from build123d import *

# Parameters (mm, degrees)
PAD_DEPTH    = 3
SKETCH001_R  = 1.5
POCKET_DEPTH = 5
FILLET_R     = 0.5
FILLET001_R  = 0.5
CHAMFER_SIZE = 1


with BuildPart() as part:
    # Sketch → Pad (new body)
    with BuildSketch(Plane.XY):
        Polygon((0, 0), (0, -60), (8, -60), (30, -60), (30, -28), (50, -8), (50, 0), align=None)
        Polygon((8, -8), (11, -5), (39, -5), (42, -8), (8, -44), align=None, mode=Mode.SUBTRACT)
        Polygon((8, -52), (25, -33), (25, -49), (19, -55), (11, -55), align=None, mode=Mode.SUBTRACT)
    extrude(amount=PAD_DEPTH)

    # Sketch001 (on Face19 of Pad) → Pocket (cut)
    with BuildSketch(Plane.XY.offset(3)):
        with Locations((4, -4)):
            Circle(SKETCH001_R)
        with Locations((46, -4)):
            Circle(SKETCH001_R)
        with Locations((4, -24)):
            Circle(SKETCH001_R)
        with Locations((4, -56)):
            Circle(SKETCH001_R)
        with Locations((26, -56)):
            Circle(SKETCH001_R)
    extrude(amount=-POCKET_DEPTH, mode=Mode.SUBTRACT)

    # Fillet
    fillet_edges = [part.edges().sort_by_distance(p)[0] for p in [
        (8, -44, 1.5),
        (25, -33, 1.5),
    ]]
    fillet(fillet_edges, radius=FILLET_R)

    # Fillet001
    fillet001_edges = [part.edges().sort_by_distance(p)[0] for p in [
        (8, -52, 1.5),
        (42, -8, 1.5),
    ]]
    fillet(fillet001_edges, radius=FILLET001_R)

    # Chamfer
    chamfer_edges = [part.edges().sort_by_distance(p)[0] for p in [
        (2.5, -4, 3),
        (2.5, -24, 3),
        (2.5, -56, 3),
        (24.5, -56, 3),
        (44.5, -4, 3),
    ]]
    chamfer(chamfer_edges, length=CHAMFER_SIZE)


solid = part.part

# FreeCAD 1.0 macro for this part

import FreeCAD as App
import Part
import Sketcher
Q = App.Units.Quantity


def edges_at(feature, points):
    """Names of the edges that pass closest to the given points."""
    edges = feature.Shape.Edges
    near = lambda p: min(range(len(edges)), key=lambda i: edges[i].distToShape(Part.Vertex(*p))[0])
    return sorted({f"Edge{near(p) + 1}" for p in points})


def add_polygon(sketch, points):
    """Adds a closed chain of lines whose ends are joined by coincident constraints."""
    first, n = sketch.GeometryCount, len(points)
    for a, b in zip(points, points[1:] + points[:1]):
        sketch.addGeometry(Part.LineSegment(App.Vector(*a, 0), App.Vector(*b, 0)), False)
    for i in range(n):
        sketch.addConstraint(Sketcher.Constraint("Coincident", first + i, 2, first + (i + 1) % n, 1))

doc = App.newDocument("Part")
body = doc.addObject("PartDesign::Body", "Body")

# Sketch on XY plane
sketch1 = body.newObject("Sketcher::SketchObject", "Sketch")
sketch1.AttachmentSupport = (doc.getObject("XY_Plane"), [""])
sketch1.MapMode = "FlatFace"
add_polygon(sketch1, [(0, 0), (0, -60), (30, -60), (30, -28), (50, -8), (50, 0)])  # lines 0-5
add_polygon(sketch1, [(11, -55), (8, -52), (25, -33), (25, -49), (19, -55)])  # lines 6-10
add_polygon(sketch1, [(8, -44), (8, -8), (11, -5), (39, -5), (42, -8)])  # lines 11-15
sketch1.addConstraint([
    Sketcher.Constraint("Vertical", 0),
    Sketcher.Constraint("Horizontal", 1),
    Sketcher.Constraint("Vertical", 2),
    Sketcher.Constraint("Vertical", 4),
    Sketcher.Constraint("Horizontal", 5),
    Sketcher.Constraint("Vertical", 8),
    Sketcher.Constraint("Horizontal", 10),
    Sketcher.Constraint("Vertical", 11),
    Sketcher.Constraint("Horizontal", 13),
    Sketcher.Constraint("Coincident", 5, 2, -1, 1),
    Sketcher.Constraint("Perpendicular", 3, 6),
    Sketcher.Constraint("Perpendicular", 6, 9),
    Sketcher.Constraint("Parallel", 9, 12),
    Sketcher.Constraint("Perpendicular", 12, 14),
    Sketcher.Constraint("Horizontal", 3, 2, 11, 2),
    Sketcher.Constraint("Horizontal", 11, 2, 14, 2),
    Sketcher.Constraint("Vertical", 6, 2, 11, 2),
    Sketcher.Constraint("Vertical", 10, 2, 12, 2),
    Sketcher.Constraint("Equal", 10, 4),
    Sketcher.Constraint("Equal", 6, 12),
    Sketcher.Constraint("DistanceX", 1, 1, 1, 2, Q("30 mm")),
    Sketcher.Constraint("DistanceX", 5, 2, 5, 1, Q("50 mm")),
    Sketcher.Constraint("DistanceX", 10, 2, 10, 1, Q("8 mm")),
    Sketcher.Constraint("DistanceX", 13, 1, 13, 2, Q("28 mm")),
    Sketcher.Constraint("DistanceY", 0, 2, 0, 1, Q("60 mm")),
    Sketcher.Constraint("DistanceY", 8, 2, 8, 1, Q("16 mm")),
    Sketcher.Constraint("DistanceY", 11, 1, 11, 2, Q("36 mm")),
    Sketcher.Constraint("DistanceX", -1, 1, 6, 2, Q("8 mm")),
    Sketcher.Constraint("DistanceY", 6, 2, -1, 1, Q("52 mm")),
    Sketcher.Constraint("DistanceX", -1, 1, 7, 2, Q("25 mm")),
    Sketcher.Constraint("DistanceY", 7, 2, -1, 1, Q("33 mm")),
])
pad1 = body.newObject("PartDesign::Pad", "Pad")
pad1.Profile = sketch1
pad1.Length = 3

# Sketch on XY plane
sketch2 = body.newObject("Sketcher::SketchObject", "Sketch001")
sketch2.AttachmentSupport = (doc.getObject("XY_Plane"), [""])
sketch2.MapMode = "FlatFace"
sketch2.AttachmentOffset = App.Placement(App.Vector(0, 0, 3), App.Rotation())
sketch2.addGeometry([
    Part.Circle(App.Vector(4, -4, 0), App.Vector(0, 0, 1), 1.5),  # 0
    Part.Circle(App.Vector(46, -4, 0), App.Vector(0, 0, 1), 1.5),  # 1
    Part.Circle(App.Vector(4, -24, 0), App.Vector(0, 0, 1), 1.5),  # 2
    Part.Circle(App.Vector(4, -56, 0), App.Vector(0, 0, 1), 1.5),  # 3
    Part.Circle(App.Vector(26, -56, 0), App.Vector(0, 0, 1), 1.5),  # 4
], False)
sketch2.addConstraint([
    Sketcher.Constraint("Equal", 0, 1),
    Sketcher.Constraint("Equal", 1, 2),
    Sketcher.Constraint("Equal", 2, 3),
    Sketcher.Constraint("Equal", 3, 4),
    Sketcher.Constraint("Horizontal", 0, 3, 1, 3),
    Sketcher.Constraint("Horizontal", 3, 3, 4, 3),
    Sketcher.Constraint("Vertical", 0, 3, 2, 3),
    Sketcher.Constraint("Vertical", 2, 3, 3, 3),
    Sketcher.Constraint("Diameter", 0, Q("3 mm")),
    Sketcher.Constraint("DistanceX", -1, 1, 0, 3, Q("4 mm")),
    Sketcher.Constraint("DistanceY", 0, 3, -1, 1, Q("4 mm")),
    Sketcher.Constraint("DistanceX", -1, 1, 1, 3, Q("46 mm")),
    Sketcher.Constraint("DistanceY", 2, 3, -1, 1, Q("24 mm")),
    Sketcher.Constraint("DistanceY", 3, 3, -1, 1, Q("56 mm")),
    Sketcher.Constraint("DistanceX", -1, 1, 4, 3, Q("26 mm")),
])
pocket1 = body.newObject("PartDesign::Pocket", "Pocket")
pocket1.Profile = sketch2
pocket1.Length = 5
doc.recompute()

fillet = body.newObject("PartDesign::Fillet", "Fillet")
fillet.Base = (pocket1, edges_at(pocket1, [(8, -44, 1.5), (25, -33, 1.5)]))
fillet.Radius = 0.5
doc.recompute()

fillet2 = body.newObject("PartDesign::Fillet", "Fillet001")
fillet2.Base = (fillet, edges_at(fillet, [(8, -52, 1.5), (42, -8, 1.5)]))
fillet2.Radius = 0.5
doc.recompute()

chamfer = body.newObject("PartDesign::Chamfer", "Chamfer")
chamfer.Base = (fillet2, edges_at(fillet2, [
    (2.5, -4, 3),
    (2.5, -24, 3),
    (2.5, -56, 3),
    (24.5, -56, 3),
    (44.5, -4, 3),
]))
chamfer.Size = 1

doc.recompute()
